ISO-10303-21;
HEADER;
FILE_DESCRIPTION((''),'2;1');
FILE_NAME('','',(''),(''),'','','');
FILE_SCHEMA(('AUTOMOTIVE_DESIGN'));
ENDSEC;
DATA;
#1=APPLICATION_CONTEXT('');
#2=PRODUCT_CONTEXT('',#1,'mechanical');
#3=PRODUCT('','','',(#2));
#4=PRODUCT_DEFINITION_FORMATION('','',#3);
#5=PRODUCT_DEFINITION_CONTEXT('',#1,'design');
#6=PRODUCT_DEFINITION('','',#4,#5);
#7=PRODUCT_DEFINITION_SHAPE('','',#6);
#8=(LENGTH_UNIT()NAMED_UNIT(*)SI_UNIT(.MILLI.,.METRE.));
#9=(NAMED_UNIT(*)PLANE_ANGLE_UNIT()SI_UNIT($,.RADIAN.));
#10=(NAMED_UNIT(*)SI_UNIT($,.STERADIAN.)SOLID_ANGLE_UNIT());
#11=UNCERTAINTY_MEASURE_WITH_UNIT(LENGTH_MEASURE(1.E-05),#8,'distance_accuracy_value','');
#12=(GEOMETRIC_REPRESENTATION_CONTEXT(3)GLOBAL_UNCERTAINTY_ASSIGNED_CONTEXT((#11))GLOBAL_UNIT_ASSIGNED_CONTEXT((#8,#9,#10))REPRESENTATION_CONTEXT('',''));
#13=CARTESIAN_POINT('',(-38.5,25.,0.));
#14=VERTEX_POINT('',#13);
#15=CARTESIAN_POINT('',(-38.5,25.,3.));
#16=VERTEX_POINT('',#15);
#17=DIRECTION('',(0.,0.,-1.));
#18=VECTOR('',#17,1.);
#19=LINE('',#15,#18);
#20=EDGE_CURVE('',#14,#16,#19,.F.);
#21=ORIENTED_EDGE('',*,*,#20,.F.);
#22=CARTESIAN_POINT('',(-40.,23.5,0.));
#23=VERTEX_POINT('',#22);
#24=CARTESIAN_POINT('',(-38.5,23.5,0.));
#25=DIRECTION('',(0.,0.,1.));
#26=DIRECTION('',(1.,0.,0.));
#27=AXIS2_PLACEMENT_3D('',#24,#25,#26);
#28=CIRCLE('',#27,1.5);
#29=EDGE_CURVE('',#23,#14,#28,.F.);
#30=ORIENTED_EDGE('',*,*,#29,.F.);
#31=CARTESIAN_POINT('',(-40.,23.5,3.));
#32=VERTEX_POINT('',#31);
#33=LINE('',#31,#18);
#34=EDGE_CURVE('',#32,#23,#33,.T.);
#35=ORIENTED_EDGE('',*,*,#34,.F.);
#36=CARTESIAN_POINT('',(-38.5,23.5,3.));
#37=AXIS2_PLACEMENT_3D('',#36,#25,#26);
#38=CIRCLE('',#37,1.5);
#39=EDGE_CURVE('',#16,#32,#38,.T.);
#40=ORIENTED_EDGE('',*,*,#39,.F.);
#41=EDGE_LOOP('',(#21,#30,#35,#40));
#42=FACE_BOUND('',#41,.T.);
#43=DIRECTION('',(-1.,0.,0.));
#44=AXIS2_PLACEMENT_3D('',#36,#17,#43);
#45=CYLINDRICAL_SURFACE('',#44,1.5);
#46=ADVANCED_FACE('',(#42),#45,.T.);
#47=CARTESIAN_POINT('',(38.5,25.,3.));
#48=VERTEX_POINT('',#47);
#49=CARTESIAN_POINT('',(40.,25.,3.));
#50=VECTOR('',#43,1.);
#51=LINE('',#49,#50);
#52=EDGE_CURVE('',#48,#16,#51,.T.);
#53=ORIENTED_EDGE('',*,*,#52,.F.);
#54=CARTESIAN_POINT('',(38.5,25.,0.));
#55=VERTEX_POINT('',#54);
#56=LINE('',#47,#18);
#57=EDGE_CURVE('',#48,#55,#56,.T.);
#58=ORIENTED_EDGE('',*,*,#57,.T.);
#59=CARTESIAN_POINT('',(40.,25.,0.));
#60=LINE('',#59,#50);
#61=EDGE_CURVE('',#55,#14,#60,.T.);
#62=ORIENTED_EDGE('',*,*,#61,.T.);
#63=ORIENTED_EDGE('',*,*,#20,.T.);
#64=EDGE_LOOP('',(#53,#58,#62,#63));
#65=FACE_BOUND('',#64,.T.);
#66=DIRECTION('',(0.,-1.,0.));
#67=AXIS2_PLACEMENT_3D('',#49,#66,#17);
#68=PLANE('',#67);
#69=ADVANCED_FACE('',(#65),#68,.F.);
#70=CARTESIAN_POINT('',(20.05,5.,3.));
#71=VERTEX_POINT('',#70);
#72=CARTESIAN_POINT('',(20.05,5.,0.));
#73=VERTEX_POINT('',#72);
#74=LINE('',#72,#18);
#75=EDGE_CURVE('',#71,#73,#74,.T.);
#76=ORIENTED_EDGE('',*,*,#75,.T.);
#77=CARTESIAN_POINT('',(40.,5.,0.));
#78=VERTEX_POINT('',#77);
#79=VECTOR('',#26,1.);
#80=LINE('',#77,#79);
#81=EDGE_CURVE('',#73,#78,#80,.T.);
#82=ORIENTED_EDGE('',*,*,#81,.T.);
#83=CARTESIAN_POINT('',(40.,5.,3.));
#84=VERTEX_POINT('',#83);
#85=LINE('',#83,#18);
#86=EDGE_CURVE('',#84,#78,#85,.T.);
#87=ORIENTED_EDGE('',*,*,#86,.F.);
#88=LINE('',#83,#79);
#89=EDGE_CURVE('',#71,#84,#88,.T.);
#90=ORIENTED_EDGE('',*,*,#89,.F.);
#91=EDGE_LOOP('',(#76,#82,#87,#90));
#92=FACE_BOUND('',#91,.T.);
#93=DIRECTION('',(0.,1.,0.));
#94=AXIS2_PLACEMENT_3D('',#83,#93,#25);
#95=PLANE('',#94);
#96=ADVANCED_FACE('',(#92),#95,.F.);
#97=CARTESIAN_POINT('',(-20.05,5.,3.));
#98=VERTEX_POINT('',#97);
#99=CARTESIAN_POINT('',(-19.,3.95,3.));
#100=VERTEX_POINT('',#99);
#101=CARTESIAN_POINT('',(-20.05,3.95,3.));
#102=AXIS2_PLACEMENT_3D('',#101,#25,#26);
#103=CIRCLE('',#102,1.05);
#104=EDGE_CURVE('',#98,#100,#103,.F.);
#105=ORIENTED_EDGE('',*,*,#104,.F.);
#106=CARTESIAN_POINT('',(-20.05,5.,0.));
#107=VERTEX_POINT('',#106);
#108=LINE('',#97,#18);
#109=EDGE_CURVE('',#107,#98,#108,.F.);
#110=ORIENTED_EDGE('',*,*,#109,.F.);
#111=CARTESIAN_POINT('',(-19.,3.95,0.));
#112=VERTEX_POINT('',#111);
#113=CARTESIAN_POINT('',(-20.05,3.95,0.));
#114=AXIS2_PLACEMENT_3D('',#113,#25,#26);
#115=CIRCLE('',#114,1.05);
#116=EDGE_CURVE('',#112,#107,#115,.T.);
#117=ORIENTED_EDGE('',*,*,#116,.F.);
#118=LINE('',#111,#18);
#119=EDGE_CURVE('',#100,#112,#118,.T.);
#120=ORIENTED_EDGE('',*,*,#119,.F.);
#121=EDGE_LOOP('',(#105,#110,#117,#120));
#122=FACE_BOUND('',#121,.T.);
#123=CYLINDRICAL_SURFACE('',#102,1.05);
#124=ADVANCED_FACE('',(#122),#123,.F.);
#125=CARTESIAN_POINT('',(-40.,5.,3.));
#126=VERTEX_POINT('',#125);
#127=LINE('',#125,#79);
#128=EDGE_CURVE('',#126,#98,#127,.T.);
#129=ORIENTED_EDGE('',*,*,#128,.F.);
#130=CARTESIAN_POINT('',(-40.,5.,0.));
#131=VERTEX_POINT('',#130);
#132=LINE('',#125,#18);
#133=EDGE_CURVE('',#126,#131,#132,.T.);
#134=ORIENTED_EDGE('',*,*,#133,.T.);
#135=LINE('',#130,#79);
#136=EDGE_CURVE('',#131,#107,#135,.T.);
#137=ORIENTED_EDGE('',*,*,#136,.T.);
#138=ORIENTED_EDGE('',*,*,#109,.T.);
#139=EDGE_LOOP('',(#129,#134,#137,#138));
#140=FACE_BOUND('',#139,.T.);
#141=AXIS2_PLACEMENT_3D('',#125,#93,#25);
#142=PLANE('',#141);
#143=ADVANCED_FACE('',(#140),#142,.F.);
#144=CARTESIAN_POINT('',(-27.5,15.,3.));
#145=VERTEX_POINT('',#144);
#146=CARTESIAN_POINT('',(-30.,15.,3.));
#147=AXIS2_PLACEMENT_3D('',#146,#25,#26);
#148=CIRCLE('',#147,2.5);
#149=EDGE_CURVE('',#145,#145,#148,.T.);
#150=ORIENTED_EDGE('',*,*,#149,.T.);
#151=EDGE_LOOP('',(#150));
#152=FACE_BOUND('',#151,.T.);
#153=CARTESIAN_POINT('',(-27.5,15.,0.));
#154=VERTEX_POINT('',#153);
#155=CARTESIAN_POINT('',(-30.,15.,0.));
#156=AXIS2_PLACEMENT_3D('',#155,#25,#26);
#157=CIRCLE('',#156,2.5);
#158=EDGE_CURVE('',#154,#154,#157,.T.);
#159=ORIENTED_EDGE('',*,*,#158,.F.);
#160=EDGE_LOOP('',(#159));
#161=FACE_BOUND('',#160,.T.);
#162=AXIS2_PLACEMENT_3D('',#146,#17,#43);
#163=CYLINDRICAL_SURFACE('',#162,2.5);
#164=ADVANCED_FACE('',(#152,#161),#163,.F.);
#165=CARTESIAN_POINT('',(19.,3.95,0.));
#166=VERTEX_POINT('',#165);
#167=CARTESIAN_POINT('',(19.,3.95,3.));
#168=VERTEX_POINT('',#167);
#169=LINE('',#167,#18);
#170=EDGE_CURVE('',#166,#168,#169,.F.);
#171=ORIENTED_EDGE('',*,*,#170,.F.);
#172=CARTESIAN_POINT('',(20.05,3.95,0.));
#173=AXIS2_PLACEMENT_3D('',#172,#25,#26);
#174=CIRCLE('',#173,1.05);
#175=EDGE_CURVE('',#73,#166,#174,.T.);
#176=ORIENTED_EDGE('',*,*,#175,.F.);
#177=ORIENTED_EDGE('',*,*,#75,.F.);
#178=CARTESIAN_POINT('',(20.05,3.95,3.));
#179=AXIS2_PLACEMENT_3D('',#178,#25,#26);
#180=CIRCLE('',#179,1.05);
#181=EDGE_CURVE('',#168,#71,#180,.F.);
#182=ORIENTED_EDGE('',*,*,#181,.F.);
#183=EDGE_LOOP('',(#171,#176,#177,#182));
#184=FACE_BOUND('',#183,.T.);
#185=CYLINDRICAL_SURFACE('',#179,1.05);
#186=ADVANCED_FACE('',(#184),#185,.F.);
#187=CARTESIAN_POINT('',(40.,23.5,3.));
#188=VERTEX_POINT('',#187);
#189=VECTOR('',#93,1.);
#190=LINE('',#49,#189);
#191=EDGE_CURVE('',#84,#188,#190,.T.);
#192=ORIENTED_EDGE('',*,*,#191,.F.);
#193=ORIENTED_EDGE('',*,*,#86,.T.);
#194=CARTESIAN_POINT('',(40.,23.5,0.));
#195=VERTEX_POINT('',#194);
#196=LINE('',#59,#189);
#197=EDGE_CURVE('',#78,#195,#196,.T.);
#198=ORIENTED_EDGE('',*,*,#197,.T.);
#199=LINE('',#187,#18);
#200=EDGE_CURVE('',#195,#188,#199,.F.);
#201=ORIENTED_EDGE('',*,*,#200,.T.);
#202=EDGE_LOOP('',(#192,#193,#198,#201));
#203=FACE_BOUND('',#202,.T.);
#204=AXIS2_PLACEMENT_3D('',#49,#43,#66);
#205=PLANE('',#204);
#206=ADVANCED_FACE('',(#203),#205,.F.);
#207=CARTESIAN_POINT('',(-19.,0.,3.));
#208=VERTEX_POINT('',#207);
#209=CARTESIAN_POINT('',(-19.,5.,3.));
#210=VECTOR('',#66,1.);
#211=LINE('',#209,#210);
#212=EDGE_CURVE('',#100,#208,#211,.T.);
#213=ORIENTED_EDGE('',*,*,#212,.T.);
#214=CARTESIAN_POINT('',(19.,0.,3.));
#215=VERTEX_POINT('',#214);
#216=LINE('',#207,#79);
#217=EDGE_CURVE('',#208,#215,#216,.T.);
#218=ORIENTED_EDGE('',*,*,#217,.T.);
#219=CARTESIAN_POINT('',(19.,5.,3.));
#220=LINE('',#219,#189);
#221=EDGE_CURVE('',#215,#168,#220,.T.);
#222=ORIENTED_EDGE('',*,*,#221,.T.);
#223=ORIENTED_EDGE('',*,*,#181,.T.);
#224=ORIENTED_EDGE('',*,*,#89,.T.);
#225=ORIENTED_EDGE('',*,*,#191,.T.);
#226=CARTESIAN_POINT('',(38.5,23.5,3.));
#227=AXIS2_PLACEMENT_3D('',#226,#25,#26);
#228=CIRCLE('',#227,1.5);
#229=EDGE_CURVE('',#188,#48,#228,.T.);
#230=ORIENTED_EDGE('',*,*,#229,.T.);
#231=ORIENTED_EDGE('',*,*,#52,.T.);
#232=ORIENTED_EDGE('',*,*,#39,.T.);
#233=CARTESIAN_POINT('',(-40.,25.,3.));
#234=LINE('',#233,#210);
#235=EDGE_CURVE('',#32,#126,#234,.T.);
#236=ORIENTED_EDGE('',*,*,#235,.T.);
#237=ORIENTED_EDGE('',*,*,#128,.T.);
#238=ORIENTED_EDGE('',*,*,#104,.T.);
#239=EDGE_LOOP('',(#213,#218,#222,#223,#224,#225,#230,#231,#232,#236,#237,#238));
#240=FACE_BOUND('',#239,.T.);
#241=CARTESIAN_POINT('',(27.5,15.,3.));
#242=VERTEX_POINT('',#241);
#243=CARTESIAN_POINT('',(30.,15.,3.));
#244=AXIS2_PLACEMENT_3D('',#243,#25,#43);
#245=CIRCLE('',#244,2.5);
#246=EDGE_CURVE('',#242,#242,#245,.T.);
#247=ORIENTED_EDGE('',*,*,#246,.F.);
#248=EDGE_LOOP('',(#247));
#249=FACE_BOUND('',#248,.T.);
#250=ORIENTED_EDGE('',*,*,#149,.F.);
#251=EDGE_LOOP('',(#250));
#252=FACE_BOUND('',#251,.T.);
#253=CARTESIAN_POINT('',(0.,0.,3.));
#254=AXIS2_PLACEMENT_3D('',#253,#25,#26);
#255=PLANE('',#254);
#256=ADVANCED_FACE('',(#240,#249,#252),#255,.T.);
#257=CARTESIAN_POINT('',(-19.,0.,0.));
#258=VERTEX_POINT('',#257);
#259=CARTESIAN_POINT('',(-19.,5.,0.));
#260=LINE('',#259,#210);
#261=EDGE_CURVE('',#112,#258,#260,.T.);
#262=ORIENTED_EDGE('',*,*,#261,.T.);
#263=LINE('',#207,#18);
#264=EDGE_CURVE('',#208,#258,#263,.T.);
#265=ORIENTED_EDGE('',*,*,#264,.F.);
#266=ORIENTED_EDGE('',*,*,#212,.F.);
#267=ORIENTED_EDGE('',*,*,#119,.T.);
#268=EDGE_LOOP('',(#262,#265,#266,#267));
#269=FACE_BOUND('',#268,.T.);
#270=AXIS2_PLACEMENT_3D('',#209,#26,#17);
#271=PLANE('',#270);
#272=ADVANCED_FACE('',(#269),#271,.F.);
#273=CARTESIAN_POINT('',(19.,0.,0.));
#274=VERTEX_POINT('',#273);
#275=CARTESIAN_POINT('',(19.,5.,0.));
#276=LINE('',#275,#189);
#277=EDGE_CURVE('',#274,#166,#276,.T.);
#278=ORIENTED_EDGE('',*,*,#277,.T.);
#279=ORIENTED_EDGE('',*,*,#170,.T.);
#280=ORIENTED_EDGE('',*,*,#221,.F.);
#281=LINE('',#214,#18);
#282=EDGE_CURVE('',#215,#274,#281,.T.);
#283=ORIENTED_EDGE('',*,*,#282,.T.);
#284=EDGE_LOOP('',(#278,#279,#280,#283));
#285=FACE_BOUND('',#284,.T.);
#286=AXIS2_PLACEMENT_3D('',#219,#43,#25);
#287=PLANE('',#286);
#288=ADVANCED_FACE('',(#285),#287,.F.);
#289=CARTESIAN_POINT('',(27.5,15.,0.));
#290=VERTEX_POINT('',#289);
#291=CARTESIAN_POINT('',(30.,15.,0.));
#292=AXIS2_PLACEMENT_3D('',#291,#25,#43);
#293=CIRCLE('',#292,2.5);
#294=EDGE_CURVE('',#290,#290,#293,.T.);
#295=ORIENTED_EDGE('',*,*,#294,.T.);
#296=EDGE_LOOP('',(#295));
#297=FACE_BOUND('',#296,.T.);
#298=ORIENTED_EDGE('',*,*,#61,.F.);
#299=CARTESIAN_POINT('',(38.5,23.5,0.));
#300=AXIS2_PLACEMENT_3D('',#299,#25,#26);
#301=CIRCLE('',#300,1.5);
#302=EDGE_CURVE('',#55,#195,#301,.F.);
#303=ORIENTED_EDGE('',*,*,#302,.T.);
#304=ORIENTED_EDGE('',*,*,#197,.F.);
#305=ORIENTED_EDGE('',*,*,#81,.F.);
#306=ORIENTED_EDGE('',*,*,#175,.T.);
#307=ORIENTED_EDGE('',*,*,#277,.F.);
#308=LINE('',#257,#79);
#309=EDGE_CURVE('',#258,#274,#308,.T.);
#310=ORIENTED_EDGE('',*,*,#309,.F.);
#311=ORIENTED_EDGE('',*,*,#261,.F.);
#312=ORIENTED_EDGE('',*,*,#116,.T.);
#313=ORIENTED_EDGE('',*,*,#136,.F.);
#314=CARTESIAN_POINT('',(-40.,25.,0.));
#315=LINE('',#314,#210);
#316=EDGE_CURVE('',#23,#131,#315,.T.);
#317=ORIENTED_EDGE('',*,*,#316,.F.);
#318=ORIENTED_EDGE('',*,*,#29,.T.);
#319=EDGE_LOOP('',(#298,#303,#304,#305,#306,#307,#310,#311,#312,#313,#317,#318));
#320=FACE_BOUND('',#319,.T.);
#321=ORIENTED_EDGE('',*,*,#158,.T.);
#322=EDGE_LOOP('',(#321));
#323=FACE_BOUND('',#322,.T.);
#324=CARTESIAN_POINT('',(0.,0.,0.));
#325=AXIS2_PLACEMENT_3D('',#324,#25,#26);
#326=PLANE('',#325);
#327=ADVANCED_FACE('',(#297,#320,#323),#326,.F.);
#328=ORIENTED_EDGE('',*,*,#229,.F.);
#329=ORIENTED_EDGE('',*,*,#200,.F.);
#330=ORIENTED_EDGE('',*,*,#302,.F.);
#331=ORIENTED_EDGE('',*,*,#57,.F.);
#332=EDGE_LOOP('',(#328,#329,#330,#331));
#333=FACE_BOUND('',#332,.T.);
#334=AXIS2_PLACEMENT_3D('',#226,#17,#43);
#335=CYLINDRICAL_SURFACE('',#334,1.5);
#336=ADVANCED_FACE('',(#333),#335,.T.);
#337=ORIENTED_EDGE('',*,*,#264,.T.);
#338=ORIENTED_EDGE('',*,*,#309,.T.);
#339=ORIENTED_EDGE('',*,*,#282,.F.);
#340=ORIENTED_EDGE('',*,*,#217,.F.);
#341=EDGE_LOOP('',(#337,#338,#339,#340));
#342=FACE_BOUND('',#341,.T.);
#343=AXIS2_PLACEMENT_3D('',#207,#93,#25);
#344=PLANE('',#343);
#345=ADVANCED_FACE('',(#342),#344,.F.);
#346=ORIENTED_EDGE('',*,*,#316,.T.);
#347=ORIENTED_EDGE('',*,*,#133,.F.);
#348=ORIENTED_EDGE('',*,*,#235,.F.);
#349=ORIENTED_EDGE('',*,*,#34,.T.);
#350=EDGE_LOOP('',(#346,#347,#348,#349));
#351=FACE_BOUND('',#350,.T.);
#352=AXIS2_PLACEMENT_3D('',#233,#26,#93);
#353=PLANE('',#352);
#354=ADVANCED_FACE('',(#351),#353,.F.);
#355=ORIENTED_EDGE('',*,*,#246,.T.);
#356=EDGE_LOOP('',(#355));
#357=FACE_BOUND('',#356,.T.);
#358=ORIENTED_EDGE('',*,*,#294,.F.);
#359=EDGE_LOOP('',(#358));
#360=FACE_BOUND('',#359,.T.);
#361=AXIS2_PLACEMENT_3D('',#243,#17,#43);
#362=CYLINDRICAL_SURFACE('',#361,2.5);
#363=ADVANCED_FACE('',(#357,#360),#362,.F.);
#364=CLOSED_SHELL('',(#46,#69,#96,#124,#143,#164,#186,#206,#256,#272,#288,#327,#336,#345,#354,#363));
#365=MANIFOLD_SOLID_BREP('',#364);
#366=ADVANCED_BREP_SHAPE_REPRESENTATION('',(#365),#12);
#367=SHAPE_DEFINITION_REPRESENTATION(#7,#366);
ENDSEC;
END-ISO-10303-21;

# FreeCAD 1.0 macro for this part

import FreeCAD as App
import Part
import Sketcher

V = App.Vector


def edges_at(feature, points):
    """Names of the edges that pass closest to the given points."""
    edges = feature.Shape.Edges
    near = lambda p: min(range(len(edges)), key=lambda i: edges[i].distToShape(Part.Vertex(*p))[0])
    return sorted({f"Edge{near(p) + 1}" for p in points})


def add_polygon(sketch, points):
    """Adds a closed chain of lines whose ends are joined by coincident constraints."""
    first, n = sketch.GeometryCount, len(points)
    for a, b in zip(points, points[1:] + points[:1]):
        sketch.addGeometry(Part.LineSegment(App.Vector(*a, 0), App.Vector(*b, 0)), False)
    for i in range(n):
        sketch.addConstraint(Sketcher.Constraint("Coincident", first + i, 2, first + (i + 1) % n, 1))

doc = App.newDocument("Part")
body = doc.addObject("PartDesign::Body", "Body")

# Sketch on XY plane
sketch1 = body.newObject("Sketcher::SketchObject", "Sketch")
sketch1.AttachmentSupport = (doc.getObject("XY_Plane"), [""])
sketch1.MapMode = "FlatFace"
add_polygon(sketch1, [(-19, 0), (19, 0), (19, 5), (40, 5), (40, 25), (-40, 25), (-40, 5), (-19, 5)])  # lines 0-7
sketch1.addGeometry(Part.Circle(V(-30, 15, 0), V(0, 0, 1), 2.5), False)  # 8
sketch1.addGeometry(Part.Circle(V(30, 15, 0), V(0, 0, 1), 2.5), False)  # 9
sketch1.addConstraint(Sketcher.Constraint("Horizontal", 0))
sketch1.addConstraint(Sketcher.Constraint("Vertical", 1))
sketch1.addConstraint(Sketcher.Constraint("Horizontal", 2))
sketch1.addConstraint(Sketcher.Constraint("Vertical", 3))
sketch1.addConstraint(Sketcher.Constraint("Horizontal", 4))
sketch1.addConstraint(Sketcher.Constraint("Vertical", 5))
sketch1.addConstraint(Sketcher.Constraint("Horizontal", 6))
sketch1.addConstraint(Sketcher.Constraint("Vertical", 7))
sketch1.addConstraint(Sketcher.Constraint("Equal", 8, 9))
sketch1.addConstraint(Sketcher.Constraint("Symmetric", 0, 2, 7, 2, -1, 1))
sketch1.addConstraint(Sketcher.Constraint("Symmetric", 8, 3, 9, 3, -2))
sketch1.addConstraint(Sketcher.Constraint("Symmetric", 2, 2, 5, 2, -2))
sketch1.addConstraint(Sketcher.Constraint("Diameter", 8, 5.0))
sketch1.addConstraint(Sketcher.Constraint("DistanceX", 0, 1, 0, 2, 38.0))
sketch1.addConstraint(Sketcher.Constraint("DistanceX", 2, 1, 2, 2, 21.0))
sketch1.addConstraint(Sketcher.Constraint("DistanceY", 1, 1, 1, 2, 5.0))
sketch1.addConstraint(Sketcher.Constraint("DistanceY", 3, 1, 3, 2, 20.0))
sketch1.addConstraint(Sketcher.Constraint("DistanceX", 8, 3, -1, 1, 30.0))
sketch1.addConstraint(Sketcher.Constraint("DistanceY", -1, 1, 8, 3, 15.0))
pad1 = body.newObject("PartDesign::Pad", "Pad")
pad1.Profile = sketch1
pad1.Length = 3
doc.recompute()

fillet = body.newObject("PartDesign::Fillet", "Fillet")
fillet.Base = (pad1, edges_at(pad1, [(-19, 5, 1.5), (19, 5, 1.5)]))
fillet.Radius = 1.05
doc.recompute()

fillet2 = body.newObject("PartDesign::Fillet", "Fillet001")
fillet2.Base = (fillet, edges_at(fillet, [(-40, 25, 1.5), (40, 25, 1.5)]))
fillet2.Radius = 1.5

doc.recompute()
